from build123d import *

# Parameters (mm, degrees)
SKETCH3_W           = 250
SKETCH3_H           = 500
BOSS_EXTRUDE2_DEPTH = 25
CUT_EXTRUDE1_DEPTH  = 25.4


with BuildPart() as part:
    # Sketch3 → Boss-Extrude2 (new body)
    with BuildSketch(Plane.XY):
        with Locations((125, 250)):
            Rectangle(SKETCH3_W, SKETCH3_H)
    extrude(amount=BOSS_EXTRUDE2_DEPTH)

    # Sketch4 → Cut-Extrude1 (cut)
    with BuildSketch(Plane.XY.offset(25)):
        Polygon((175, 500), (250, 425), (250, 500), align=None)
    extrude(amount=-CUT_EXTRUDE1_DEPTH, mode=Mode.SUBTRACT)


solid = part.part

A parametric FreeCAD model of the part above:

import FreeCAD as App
import Part
import Sketcher
Q = App.Units.Quantity


def add_polygon(sketch, points):
    """Adds a closed chain of lines whose ends are joined by coincident constraints."""
    first, n = sketch.GeometryCount, len(points)
    for a, b in zip(points, points[1:] + points[:1]):
        sketch.addGeometry(Part.LineSegment(App.Vector(*a, 0), App.Vector(*b, 0)), False)
    for i in range(n):
        sketch.addConstraint(Sketcher.Constraint("Coincident", first + i, 2, first + (i + 1) % n, 1))

doc = App.newDocument("Part")
params = doc.addObject("Spreadsheet::Sheet", "Params")
for row, (alias, value) in enumerate([
    ("sketch1_width", "250 mm"),
    ("sketch1_height", "500 mm"),
    ("pad1_length", "25 mm"),
    ("sketch2_width", "75 mm"),
    ("pocket1_length", "25.4 mm"),
], start=1):
    params.set(f"A{row}", alias)
    params.set(f"B{row}", "=" + value)
    params.setAlias(f"B{row}", alias)

body = doc.addObject("PartDesign::Body", "Body")

# Sketch on XY plane
sketch1 = doc.addObject("Sketcher::SketchObject", "Sketch")
body.addObject(sketch1)
sketch1.AttachmentSupport = (doc.XY_Plane, [""])
sketch1.MapMode = "FlatFace"
add_polygon(sketch1, [(0, 500), (0, 0), (250, 0), (250, 500)])  # lines 0-3
sketch1.addConstraint(Sketcher.Constraint("Vertical", 0))
sketch1.addConstraint(Sketcher.Constraint("Horizontal", 1))
sketch1.addConstraint(Sketcher.Constraint("Vertical", 2))
sketch1.addConstraint(Sketcher.Constraint("Horizontal", 3))
sketch1.addConstraint(Sketcher.Constraint("Coincident", 0, 2, -1, 1))
sketch1.addConstraint(Sketcher.Constraint("DistanceX", 1, 1, 1, 2, Q("250 mm")))
sketch1.addConstraint(Sketcher.Constraint("DistanceY", 0, 2, 0, 1, Q("500 mm")))
sketch1.setExpression("Constraints[9]", "Params.sketch1_width")
sketch1.setExpression("Constraints[10]", "Params.sketch1_height")
pad1 = doc.addObject("PartDesign::Pad", "Pad")
body.addObject(pad1)
pad1.Profile = sketch1
pad1.setExpression("Length", "Params.pad1_length")

# Sketch on XY plane
sketch2 = doc.addObject("Sketcher::SketchObject", "Sketch001")
body.addObject(sketch2)
sketch2.AttachmentSupport = (doc.XY_Plane, [""])
sketch2.MapMode = "FlatFace"
sketch2.AttachmentOffset = App.Placement(App.Vector(0, 0, 25), App.Rotation())
add_polygon(sketch2, [(175, 500), (250, 425), (250, 500)])  # lines 0-2
sketch2.addConstraint(Sketcher.Constraint("Vertical", 1))
sketch2.addConstraint(Sketcher.Constraint("Horizontal", 2))
sketch2.addConstraint(Sketcher.Constraint("Equal", 2, 1))
sketch2.addConstraint(Sketcher.Constraint("DistanceX", 2, 2, 2, 1, Q("75 mm")))
sketch2.addConstraint(Sketcher.Constraint("DistanceX", -1, 1, 0, 2, Q("250 mm")))
sketch2.addConstraint(Sketcher.Constraint("DistanceY", -1, 1, 0, 2, Q("425 mm")))
sketch2.setExpression("Constraints[6]", "Params.sketch2_width")
pocket1 = doc.addObject("PartDesign::Pocket", "Pocket")
body.addObject(pocket1)
pocket1.Profile = sketch2
pocket1.setExpression("Length", "Params.pocket1_length")

doc.recompute()
